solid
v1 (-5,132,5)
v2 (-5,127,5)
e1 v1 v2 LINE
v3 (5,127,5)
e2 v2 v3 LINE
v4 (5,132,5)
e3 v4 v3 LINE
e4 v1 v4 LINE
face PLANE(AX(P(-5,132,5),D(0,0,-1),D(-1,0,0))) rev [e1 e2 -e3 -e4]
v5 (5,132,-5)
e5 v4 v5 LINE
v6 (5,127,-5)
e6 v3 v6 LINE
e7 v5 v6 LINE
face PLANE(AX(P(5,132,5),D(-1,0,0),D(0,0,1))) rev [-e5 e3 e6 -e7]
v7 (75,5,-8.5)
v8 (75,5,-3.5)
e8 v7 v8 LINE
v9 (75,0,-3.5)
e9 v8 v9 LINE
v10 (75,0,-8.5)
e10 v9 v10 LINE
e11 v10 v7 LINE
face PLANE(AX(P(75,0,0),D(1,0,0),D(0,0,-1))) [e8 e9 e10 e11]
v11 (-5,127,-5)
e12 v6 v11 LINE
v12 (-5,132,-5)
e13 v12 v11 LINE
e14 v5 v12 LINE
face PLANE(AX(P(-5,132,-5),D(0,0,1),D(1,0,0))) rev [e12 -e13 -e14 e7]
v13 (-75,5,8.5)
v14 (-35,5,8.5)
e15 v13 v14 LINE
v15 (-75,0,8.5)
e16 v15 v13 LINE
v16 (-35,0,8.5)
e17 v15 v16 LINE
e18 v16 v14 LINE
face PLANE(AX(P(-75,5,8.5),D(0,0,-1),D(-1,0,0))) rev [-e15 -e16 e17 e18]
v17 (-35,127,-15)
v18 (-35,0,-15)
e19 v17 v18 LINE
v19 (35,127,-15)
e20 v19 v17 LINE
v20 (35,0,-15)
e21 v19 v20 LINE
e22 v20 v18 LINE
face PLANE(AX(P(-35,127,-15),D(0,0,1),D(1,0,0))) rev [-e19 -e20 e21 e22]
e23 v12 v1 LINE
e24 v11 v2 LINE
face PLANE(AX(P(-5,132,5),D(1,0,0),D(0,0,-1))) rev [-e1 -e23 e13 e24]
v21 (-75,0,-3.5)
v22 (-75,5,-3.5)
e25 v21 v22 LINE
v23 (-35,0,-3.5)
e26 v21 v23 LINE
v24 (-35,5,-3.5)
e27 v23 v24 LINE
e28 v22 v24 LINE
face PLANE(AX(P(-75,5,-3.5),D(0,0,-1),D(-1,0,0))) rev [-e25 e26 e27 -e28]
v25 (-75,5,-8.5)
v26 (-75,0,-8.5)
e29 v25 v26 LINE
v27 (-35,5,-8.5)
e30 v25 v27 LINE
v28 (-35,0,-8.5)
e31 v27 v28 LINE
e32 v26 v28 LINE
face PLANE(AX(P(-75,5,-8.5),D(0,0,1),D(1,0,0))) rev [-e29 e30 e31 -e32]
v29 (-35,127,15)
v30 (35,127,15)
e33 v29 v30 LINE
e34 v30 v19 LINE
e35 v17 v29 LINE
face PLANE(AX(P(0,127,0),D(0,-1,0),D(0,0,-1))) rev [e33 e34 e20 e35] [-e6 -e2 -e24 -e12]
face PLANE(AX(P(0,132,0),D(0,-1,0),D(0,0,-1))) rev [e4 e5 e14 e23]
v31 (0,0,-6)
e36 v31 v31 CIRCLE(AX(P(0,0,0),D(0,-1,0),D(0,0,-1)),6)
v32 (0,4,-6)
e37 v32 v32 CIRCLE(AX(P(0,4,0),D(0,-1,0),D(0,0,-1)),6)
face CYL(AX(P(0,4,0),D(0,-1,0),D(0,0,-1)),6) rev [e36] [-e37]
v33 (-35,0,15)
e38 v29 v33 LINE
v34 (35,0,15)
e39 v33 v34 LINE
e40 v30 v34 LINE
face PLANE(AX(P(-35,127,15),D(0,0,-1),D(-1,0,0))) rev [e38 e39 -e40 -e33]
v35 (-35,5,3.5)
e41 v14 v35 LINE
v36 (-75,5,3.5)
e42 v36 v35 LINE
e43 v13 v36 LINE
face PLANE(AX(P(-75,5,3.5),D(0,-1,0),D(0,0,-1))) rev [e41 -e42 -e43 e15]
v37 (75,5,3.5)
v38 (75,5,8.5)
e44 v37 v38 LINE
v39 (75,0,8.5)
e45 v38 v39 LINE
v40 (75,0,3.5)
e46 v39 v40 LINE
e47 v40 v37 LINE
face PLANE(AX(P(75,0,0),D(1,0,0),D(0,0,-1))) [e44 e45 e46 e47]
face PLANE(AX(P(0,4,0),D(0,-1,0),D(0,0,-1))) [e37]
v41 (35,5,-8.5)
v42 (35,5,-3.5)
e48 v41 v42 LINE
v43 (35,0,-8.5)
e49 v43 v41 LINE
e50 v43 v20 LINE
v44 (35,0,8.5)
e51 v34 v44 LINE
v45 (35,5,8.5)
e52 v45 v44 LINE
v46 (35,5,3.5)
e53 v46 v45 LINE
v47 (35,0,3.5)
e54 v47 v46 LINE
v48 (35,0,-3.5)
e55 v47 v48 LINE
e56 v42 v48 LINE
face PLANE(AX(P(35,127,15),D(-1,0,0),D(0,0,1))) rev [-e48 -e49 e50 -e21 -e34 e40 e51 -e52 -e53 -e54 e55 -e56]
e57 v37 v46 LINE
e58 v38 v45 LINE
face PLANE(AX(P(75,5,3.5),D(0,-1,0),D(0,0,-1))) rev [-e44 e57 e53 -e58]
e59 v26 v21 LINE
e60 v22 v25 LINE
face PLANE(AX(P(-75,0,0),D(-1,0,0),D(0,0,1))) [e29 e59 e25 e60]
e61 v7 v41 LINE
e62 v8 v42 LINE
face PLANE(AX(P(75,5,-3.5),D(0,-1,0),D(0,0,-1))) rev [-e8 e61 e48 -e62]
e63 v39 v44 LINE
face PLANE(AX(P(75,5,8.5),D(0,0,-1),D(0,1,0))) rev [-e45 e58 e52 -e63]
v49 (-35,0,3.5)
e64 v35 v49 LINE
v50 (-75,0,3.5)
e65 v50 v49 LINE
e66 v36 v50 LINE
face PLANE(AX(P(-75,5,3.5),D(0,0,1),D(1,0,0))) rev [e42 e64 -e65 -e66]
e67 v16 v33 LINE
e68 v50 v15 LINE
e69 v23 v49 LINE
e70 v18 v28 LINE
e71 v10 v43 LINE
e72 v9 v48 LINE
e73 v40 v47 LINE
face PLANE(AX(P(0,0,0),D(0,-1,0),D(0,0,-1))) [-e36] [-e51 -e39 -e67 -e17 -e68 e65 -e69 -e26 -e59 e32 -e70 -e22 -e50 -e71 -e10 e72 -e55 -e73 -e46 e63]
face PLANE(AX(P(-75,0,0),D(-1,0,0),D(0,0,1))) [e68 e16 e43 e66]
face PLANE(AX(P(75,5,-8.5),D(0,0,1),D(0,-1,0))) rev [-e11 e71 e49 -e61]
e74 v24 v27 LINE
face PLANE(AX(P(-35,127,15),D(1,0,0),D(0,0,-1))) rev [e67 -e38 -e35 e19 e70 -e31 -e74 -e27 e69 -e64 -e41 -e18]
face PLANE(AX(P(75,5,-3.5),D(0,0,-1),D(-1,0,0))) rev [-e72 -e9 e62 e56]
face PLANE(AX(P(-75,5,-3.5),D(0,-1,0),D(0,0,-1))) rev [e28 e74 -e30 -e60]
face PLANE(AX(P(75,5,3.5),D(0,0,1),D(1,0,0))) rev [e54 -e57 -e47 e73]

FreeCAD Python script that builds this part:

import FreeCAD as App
import Part
import Sketcher

doc = App.newDocument("Part")
params = doc.addObject("Spreadsheet::Sheet", "Params")
for row, (alias, value) in enumerate([
    ("sketch1_width", "70 mm"),
    ("sketch1_height", "30 mm"),
    ("pad1_length", "127 mm"),
    ("sketch2_width", "5 mm"),
    ("pad2_length", "40 mm"),
    ("sketch3_width", "5 mm"),
    ("pad3_length", "40 mm"),
    ("sketch4_width", "10 mm"),
    ("pad4_length", "5 mm"),
    ("sketch5_diameter", "12 mm"),
    ("pocket1_length", "4 mm"),
], start=1):
    params.set(f"A{row}", alias)
    params.set(f"B{row}", "=" + value)
    params.setAlias(f"B{row}", alias)

body = doc.addObject("PartDesign::Body", "Body")

# Sketch on XZ plane
sketch1 = body.newObject("Sketcher::SketchObject", "Sketch")
sketch1.AttachmentSupport = (doc.getObject("XZ_Plane"), [""])
sketch1.MapMode = "FlatFace"
sketch1.addGeometry(Part.LineSegment(App.Vector(-35, -15, 0), App.Vector(-35, 15, 0)), False)
sketch1.addGeometry(Part.LineSegment(App.Vector(-35, 15, 0), App.Vector(35, 15, 0)), False)
sketch1.addGeometry(Part.LineSegment(App.Vector(35, 15, 0), App.Vector(35, -15, 0)), False)
sketch1.addGeometry(Part.LineSegment(App.Vector(35, -15, 0), App.Vector(-35, -15, 0)), False)
sketch1.addConstraint(Sketcher.Constraint("Coincident", 0, 2, 1, 1))
sketch1.addConstraint(Sketcher.Constraint("Coincident", 1, 2, 2, 1))
sketch1.addConstraint(Sketcher.Constraint("Coincident", 2, 2, 3, 1))
sketch1.addConstraint(Sketcher.Constraint("Coincident", 3, 2, 0, 1))
sketch1.addConstraint(Sketcher.Constraint("Vertical", 0))
sketch1.addConstraint(Sketcher.Constraint("Horizontal", 1))
sketch1.addConstraint(Sketcher.Constraint("Vertical", 2))
sketch1.addConstraint(Sketcher.Constraint("Horizontal", 3))
sketch1.addConstraint(Sketcher.Constraint("Symmetric", 0, 2, 2, 2, -1, 1))
sketch1.addConstraint(Sketcher.Constraint("DistanceX", 1, 1, 1, 2, 70.0))
sketch1.addConstraint(Sketcher.Constraint("DistanceY", 0, 1, 0, 2, 30.0))
sketch1.setExpression("Constraints[9]", "Params.sketch1_width")
sketch1.setExpression("Constraints[10]", "Params.sketch1_height")
pad1 = body.newObject("PartDesign::Pad", "Pad")
pad1.Profile = sketch1
pad1.setExpression("Length", "Params.pad1_length")
pad1.Reversed = True

# Sketch on YZ plane
sketch2 = body.newObject("Sketcher::SketchObject", "Sketch001")
sketch2.AttachmentSupport = (doc.getObject("YZ_Plane"), [""])
sketch2.MapMode = "FlatFace"
sketch2.AttachmentOffset = App.Placement(App.Vector(0, 0, 35), App.Rotation())
sketch2.addGeometry(Part.LineSegment(App.Vector(5, 8.5, 0), App.Vector(0, 8.5, 0)), False)
sketch2.addGeometry(Part.LineSegment(App.Vector(0, 8.5, 0), App.Vector(0, 3.5, 0)), False)
sketch2.addGeometry(Part.LineSegment(App.Vector(0, 3.5, 0), App.Vector(5, 3.5, 0)), False)
sketch2.addGeometry(Part.LineSegment(App.Vector(5, 3.5, 0), App.Vector(5, 8.5, 0)), False)
sketch2.addGeometry(Part.LineSegment(App.Vector(5, -3.5, 0), App.Vector(0, -3.5, 0)), False)
sketch2.addGeometry(Part.LineSegment(App.Vector(0, -3.5, 0), App.Vector(0, -8.5, 0)), False)
sketch2.addGeometry(Part.LineSegment(App.Vector(0, -8.5, 0), App.Vector(5, -8.5, 0)), False)
sketch2.addGeometry(Part.LineSegment(App.Vector(5, -8.5, 0), App.Vector(5, -3.5, 0)), False)
sketch2.addConstraint(Sketcher.Constraint("Coincident", 0, 2, 1, 1))
sketch2.addConstraint(Sketcher.Constraint("Coincident", 1, 2, 2, 1))
sketch2.addConstraint(Sketcher.Constraint("Coincident", 2, 2, 3, 1))
sketch2.addConstraint(Sketcher.Constraint("Coincident", 3, 2, 0, 1))
sketch2.addConstraint(Sketcher.Constraint("Coincident", 4, 2, 5, 1))
sketch2.addConstraint(Sketcher.Constraint("Coincident", 5, 2, 6, 1))
sketch2.addConstraint(Sketcher.Constraint("Coincident", 6, 2, 7, 1))
sketch2.addConstraint(Sketcher.Constraint("Coincident", 7, 2, 4, 1))
sketch2.addConstraint(Sketcher.Constraint("Horizontal", 0))
sketch2.addConstraint(Sketcher.Constraint("Vertical", 1))
sketch2.addConstraint(Sketcher.Constraint("Horizontal", 2))
sketch2.addConstraint(Sketcher.Constraint("Vertical", 3))
sketch2.addConstraint(Sketcher.Constraint("Horizontal", 4))
sketch2.addConstraint(Sketcher.Constraint("Vertical", 5))
sketch2.addConstraint(Sketcher.Constraint("Horizontal", 6))
sketch2.addConstraint(Sketcher.Constraint("Vertical", 7))
sketch2.addConstraint(Sketcher.Constraint("Symmetric", 1, 2, 4, 2, -1, 1))
sketch2.addConstraint(Sketcher.Constraint("Symmetric", 0, 2, 5, 2, -1))
sketch2.addConstraint(Sketcher.Constraint("Vertical", 3, 2, 6, 2))
sketch2.addConstraint(Sketcher.Constraint("Equal", 6, 1))
sketch2.addConstraint(Sketcher.Constraint("DistanceX", 0, 2, 0, 1, 5.0))
sketch2.addConstraint(Sketcher.Constraint("DistanceY", 4, 2, 1, 2, 7.0))
sketch2.setExpression("Constraints[20]", "Params.sketch2_width")
pad2 = body.newObject("PartDesign::Pad", "Pad001")
pad2.Profile = sketch2
pad2.setExpression("Length", "Params.pad2_length")

# Sketch on YZ plane
sketch3 = body.newObject("Sketcher::SketchObject", "Sketch002")
sketch3.AttachmentSupport = (doc.getObject("YZ_Plane"), [""])
sketch3.MapMode = "FlatFace"
sketch3.AttachmentOffset = App.Placement(App.Vector(0, 0, -35), App.Rotation())
sketch3.addGeometry(Part.LineSegment(App.Vector(5, -8.5, 0), App.Vector(0, -8.5, 0)), False)
sketch3.addGeometry(Part.LineSegment(App.Vector(0, -8.5, 0), App.Vector(0, -3.5, 0)), False)
sketch3.addGeometry(Part.LineSegment(App.Vector(0, -3.5, 0), App.Vector(5, -3.5, 0)), False)
sketch3.addGeometry(Part.LineSegment(App.Vector(5, -3.5, 0), App.Vector(5, -8.5, 0)), False)
sketch3.addGeometry(Part.LineSegment(App.Vector(5, 3.5, 0), App.Vector(0, 3.5, 0)), False)
sketch3.addGeometry(Part.LineSegment(App.Vector(0, 3.5, 0), App.Vector(0, 8.5, 0)), False)
sketch3.addGeometry(Part.LineSegment(App.Vector(0, 8.5, 0), App.Vector(5, 8.5, 0)), False)
sketch3.addGeometry(Part.LineSegment(App.Vector(5, 8.5, 0), App.Vector(5, 3.5, 0)), False)
sketch3.addConstraint(Sketcher.Constraint("Coincident", 0, 2, 1, 1))
sketch3.addConstraint(Sketcher.Constraint("Coincident", 1, 2, 2, 1))
sketch3.addConstraint(Sketcher.Constraint("Coincident", 2, 2, 3, 1))
sketch3.addConstraint(Sketcher.Constraint("Coincident", 3, 2, 0, 1))
sketch3.addConstraint(Sketcher.Constraint("Coincident", 4, 2, 5, 1))
sketch3.addConstraint(Sketcher.Constraint("Coincident", 5, 2, 6, 1))
sketch3.addConstraint(Sketcher.Constraint("Coincident", 6, 2, 7, 1))
sketch3.addConstraint(Sketcher.Constraint("Coincident", 7, 2, 4, 1))
sketch3.addConstraint(Sketcher.Constraint("Horizontal", 0))
sketch3.addConstraint(Sketcher.Constraint("Vertical", 1))
sketch3.addConstraint(Sketcher.Constraint("Horizontal", 2))
sketch3.addConstraint(Sketcher.Constraint("Vertical", 3))
sketch3.addConstraint(Sketcher.Constraint("Horizontal", 4))
sketch3.addConstraint(Sketcher.Constraint("Vertical", 5))
sketch3.addConstraint(Sketcher.Constraint("Horizontal", 6))
sketch3.addConstraint(Sketcher.Constraint("Vertical", 7))
sketch3.addConstraint(Sketcher.Constraint("Symmetric", 1, 2, 4, 2, -1, 1))
sketch3.addConstraint(Sketcher.Constraint("Symmetric", 0, 2, 5, 2, -1))
sketch3.addConstraint(Sketcher.Constraint("Vertical", 3, 2, 6, 2))
sketch3.addConstraint(Sketcher.Constraint("Equal", 6, 1))
sketch3.addConstraint(Sketcher.Constraint("DistanceX", 0, 2, 0, 1, 5.0))
sketch3.addConstraint(Sketcher.Constraint("DistanceY", 1, 2, 4, 2, 7.0))
sketch3.setExpression("Constraints[20]", "Params.sketch3_width")
pad3 = body.newObject("PartDesign::Pad", "Pad002")
pad3.Profile = sketch3
pad3.setExpression("Length", "Params.pad3_length")
pad3.Reversed = True

# Sketch on XZ plane
sketch4 = body.newObject("Sketcher::SketchObject", "Sketch003")
sketch4.AttachmentSupport = (doc.getObject("XZ_Plane"), [""])
sketch4.MapMode = "FlatFace"
sketch4.AttachmentOffset = App.Placement(App.Vector(0, 0, -127), App.Rotation())
sketch4.addGeometry(Part.LineSegment(App.Vector(-5, -5, 0), App.Vector(-5, 5, 0)), False)
sketch4.addGeometry(Part.LineSegment(App.Vector(-5, 5, 0), App.Vector(5, 5, 0)), False)
sketch4.addGeometry(Part.LineSegment(App.Vector(5, 5, 0), App.Vector(5, -5, 0)), False)
sketch4.addGeometry(Part.LineSegment(App.Vector(5, -5, 0), App.Vector(-5, -5, 0)), False)
sketch4.addConstraint(Sketcher.Constraint("Coincident", 0, 2, 1, 1))
sketch4.addConstraint(Sketcher.Constraint("Coincident", 1, 2, 2, 1))
sketch4.addConstraint(Sketcher.Constraint("Coincident", 2, 2, 3, 1))
sketch4.addConstraint(Sketcher.Constraint("Coincident", 3, 2, 0, 1))
sketch4.addConstraint(Sketcher.Constraint("Vertical", 0))
sketch4.addConstraint(Sketcher.Constraint("Horizontal", 1))
sketch4.addConstraint(Sketcher.Constraint("Vertical", 2))
sketch4.addConstraint(Sketcher.Constraint("Horizontal", 3))
sketch4.addConstraint(Sketcher.Constraint("Symmetric", 0, 2, 2, 2, -1, 1))
sketch4.addConstraint(Sketcher.Constraint("Equal", 3, 0))
sketch4.addConstraint(Sketcher.Constraint("DistanceX", 1, 1, 1, 2, 10.0))
sketch4.setExpression("Constraints[10]", "Params.sketch4_width")
pad4 = body.newObject("PartDesign::Pad", "Pad003")
pad4.Profile = sketch4
pad4.setExpression("Length", "Params.pad4_length")
pad4.Reversed = True

# Sketch on XZ plane
sketch5 = body.newObject("Sketcher::SketchObject", "Sketch004")
sketch5.AttachmentSupport = (doc.getObject("XZ_Plane"), [""])
sketch5.MapMode = "FlatFace"
sketch5.addGeometry(Part.Circle(App.Vector(0, 0, 0), App.Vector(0, 0, 1), 6), False)
sketch5.addConstraint(Sketcher.Constraint("Coincident", 0, 3, -1, 1))
sketch5.addConstraint(Sketcher.Constraint("Diameter", 0, 12.0))
sketch5.setExpression("Constraints[1]", "Params.sketch5_diameter")
pocket1 = body.newObject("PartDesign::Pocket", "Pocket")
pocket1.Profile = sketch5
pocket1.setExpression("Length", "Params.pocket1_length")

doc.recompute()
